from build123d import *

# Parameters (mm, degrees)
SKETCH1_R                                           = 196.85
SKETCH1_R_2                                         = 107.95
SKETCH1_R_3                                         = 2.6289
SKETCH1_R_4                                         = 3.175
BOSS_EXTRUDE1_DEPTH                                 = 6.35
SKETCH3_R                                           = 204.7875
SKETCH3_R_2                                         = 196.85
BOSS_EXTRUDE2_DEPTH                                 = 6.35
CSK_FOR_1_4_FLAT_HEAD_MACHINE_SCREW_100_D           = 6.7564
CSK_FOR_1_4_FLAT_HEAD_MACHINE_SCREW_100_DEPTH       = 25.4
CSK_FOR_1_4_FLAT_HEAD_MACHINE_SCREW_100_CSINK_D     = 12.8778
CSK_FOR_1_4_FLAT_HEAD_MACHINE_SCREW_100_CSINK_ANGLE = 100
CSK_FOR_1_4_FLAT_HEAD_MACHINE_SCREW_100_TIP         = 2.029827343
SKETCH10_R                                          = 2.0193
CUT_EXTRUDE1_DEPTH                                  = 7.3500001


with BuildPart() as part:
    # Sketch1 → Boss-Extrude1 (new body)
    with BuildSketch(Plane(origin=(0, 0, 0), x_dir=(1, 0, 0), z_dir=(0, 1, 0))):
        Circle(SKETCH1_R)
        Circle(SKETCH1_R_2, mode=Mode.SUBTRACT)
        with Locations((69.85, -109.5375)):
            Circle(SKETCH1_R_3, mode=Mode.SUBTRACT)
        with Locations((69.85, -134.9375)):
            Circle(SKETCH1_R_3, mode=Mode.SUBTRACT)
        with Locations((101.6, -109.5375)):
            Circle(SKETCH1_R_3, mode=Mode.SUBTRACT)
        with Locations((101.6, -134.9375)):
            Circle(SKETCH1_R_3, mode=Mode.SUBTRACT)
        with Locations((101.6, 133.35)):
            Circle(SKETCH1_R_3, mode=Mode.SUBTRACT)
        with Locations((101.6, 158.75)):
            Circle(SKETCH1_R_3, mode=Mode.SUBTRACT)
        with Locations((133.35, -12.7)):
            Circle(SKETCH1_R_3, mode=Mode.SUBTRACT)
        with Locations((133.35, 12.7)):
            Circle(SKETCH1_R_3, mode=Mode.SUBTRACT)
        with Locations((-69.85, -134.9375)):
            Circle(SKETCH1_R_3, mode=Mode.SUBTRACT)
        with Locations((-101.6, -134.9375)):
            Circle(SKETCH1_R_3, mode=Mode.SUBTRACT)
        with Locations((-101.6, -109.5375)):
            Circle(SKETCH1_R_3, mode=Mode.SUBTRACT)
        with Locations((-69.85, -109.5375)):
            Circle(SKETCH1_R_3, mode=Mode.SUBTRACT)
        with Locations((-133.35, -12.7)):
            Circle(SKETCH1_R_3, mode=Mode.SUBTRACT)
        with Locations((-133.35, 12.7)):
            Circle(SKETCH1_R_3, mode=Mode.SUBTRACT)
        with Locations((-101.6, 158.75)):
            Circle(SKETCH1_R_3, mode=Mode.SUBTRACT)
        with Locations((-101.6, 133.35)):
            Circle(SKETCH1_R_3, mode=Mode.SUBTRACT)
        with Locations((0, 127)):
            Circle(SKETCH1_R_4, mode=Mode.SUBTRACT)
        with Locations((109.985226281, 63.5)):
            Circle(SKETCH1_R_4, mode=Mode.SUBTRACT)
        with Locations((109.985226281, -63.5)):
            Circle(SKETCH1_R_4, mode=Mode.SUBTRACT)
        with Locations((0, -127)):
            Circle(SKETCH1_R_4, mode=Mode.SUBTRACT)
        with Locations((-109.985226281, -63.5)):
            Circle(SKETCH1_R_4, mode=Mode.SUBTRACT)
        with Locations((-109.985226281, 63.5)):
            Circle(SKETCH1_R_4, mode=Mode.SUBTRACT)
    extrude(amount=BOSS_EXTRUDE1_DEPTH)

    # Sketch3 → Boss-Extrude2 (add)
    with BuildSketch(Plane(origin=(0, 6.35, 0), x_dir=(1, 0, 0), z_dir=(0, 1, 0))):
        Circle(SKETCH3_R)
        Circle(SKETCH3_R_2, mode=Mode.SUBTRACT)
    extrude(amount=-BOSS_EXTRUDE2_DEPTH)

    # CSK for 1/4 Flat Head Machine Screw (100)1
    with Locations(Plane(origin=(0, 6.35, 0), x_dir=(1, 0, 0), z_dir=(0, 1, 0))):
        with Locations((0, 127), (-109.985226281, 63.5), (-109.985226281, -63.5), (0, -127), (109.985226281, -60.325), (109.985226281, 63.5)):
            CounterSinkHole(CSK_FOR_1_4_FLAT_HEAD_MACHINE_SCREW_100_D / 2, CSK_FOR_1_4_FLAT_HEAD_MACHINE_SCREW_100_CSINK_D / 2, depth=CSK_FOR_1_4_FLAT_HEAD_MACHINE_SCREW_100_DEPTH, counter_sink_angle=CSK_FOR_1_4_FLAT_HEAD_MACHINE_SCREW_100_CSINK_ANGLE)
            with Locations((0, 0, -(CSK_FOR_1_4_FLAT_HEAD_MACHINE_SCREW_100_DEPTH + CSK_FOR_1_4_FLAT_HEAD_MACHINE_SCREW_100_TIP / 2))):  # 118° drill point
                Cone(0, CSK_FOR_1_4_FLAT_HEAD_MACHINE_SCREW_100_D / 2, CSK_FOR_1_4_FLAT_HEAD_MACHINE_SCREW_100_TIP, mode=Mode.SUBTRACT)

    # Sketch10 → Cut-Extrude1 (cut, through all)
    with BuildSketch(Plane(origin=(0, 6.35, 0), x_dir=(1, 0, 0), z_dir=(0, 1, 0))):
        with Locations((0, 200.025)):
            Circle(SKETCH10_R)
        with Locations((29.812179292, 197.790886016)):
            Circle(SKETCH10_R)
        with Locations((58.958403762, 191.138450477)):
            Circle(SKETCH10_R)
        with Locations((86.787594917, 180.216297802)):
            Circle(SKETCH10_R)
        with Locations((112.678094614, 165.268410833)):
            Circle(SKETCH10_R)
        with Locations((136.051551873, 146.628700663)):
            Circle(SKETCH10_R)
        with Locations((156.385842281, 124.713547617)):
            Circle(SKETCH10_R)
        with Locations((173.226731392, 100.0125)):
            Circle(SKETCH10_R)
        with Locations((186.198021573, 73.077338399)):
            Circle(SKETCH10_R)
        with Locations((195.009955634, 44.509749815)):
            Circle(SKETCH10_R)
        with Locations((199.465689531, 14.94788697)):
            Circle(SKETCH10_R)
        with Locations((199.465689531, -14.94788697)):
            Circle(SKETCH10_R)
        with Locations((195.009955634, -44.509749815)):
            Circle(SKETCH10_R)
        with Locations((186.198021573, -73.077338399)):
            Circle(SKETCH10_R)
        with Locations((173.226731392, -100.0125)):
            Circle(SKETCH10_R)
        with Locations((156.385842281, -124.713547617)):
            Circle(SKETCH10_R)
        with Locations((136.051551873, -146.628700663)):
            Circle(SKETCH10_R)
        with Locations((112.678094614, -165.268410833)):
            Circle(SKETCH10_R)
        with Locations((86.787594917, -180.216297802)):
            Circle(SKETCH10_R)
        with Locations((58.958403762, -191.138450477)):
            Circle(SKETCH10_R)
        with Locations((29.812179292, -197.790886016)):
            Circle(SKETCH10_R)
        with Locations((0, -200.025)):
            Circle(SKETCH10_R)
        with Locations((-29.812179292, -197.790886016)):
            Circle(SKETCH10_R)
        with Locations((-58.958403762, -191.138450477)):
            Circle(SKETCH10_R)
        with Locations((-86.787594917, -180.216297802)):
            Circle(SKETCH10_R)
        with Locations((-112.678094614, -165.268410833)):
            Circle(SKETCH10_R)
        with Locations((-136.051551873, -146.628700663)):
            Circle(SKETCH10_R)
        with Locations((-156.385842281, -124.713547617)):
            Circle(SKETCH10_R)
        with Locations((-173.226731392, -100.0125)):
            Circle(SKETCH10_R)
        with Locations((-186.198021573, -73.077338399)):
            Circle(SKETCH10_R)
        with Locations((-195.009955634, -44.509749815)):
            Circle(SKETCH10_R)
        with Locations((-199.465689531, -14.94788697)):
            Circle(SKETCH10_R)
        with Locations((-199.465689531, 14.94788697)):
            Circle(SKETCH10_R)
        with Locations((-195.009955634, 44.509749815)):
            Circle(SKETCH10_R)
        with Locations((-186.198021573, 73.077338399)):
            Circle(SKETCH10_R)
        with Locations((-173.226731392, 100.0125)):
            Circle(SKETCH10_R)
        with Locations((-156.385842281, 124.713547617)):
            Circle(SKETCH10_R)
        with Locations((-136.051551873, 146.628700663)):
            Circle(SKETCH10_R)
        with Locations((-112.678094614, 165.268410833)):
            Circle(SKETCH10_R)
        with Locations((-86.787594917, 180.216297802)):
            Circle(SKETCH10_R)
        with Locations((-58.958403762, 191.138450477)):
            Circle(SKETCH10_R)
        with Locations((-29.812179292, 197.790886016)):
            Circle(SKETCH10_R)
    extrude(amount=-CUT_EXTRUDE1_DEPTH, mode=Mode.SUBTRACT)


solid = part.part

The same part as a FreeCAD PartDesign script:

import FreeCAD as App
import Part
import Sketcher
from FreeCAD import Vector
Q = App.Units.Quantity

doc = App.newDocument("Part")
params = doc.addObject("Spreadsheet::Sheet", "Params")
for row, (alias, value) in enumerate([
    ("sketch1_diameter", "15.5 in"),
    ("sketch1_diameter2", "8.5 in"),
    ("sketch1_diameter3", "0.25 in"),
    ("sketch1_diameter4", "0.207 in"),
    ("pad1_length", "0.25 in"),
    ("sketch2_diameter", "15.5 in"),
    ("sketch2_diameter2", "16.125 in"),
    ("pad2_length", "0.25 in"),
    ("sketch3_diameter", "0.266 in"),
    ("hole_diameter", "0.266 in"),
    ("hole_depth", "1 in"),
    ("hole_csink_diameter", "0.507 in"),
    ("sketch4_diameter", "0.159 in"),
], start=1):
    params.set(f"A{row}", alias)
    params.set(f"B{row}", "=" + value)
    params.setAlias(f"B{row}", alias)

body = doc.addObject("PartDesign::Body", "Body")

# Sketch on XZ plane
sketch1 = body.newObject("Sketcher::SketchObject", "Sketch")
sketch1.AttachmentSupport = (doc.getObject("XZ_Plane"), [""])
sketch1.MapMode = "FlatFace"
sketch1.addGeometry([
    Part.Circle(Vector(0, 0, 0), Vector(0, 0, 1), 196.8),  # 0
    Part.Circle(Vector(-101.6, 134.9, 0), Vector(0, 0, 1), 2.6),  # 1
    Part.Circle(Vector(-69.8, 134.9, 0), Vector(0, 0, 1), 2.6),  # 2
    Part.Circle(Vector(-101.6, 109.5, 0), Vector(0, 0, 1), 2.6),  # 3
    Part.Circle(Vector(-69.8, 109.5, 0), Vector(0, 0, 1), 2.6),  # 4
    Part.Circle(Vector(-110, 63.5, 0), Vector(0, 0, 1), 3.2),  # 5
    Part.Circle(Vector(-133.3, 12.7, 0), Vector(0, 0, 1), 2.6),  # 6
    Part.Circle(Vector(0, 127, 0), Vector(0, 0, 1), 3.2),  # 7
    Part.Circle(Vector(69.8, 134.9, 0), Vector(0, 0, 1), 2.6),  # 8
    Part.Circle(Vector(101.6, 134.9, 0), Vector(0, 0, 1), 2.6),  # 9
    Part.Circle(Vector(69.8, 109.5, 0), Vector(0, 0, 1), 2.6),  # 10
    Part.Circle(Vector(101.6, 109.5, 0), Vector(0, 0, 1), 2.6),  # 11
    Part.Circle(Vector(110, 63.5, 0), Vector(0, 0, 1), 3.2),  # 12
    Part.Circle(Vector(0, 0, 0), Vector(0, 0, 1), 108),  # 13
    Part.Circle(Vector(133.3, 12.7, 0), Vector(0, 0, 1), 2.6),  # 14
    Part.Circle(Vector(-133.3, -12.7, 0), Vector(0, 0, 1), 2.6),  # 15
    Part.Circle(Vector(-110, -63.5, 0), Vector(0, 0, 1), 3.2),  # 16
    Part.Circle(Vector(-101.6, -133.3, 0), Vector(0, 0, 1), 2.6),  # 17
    Part.Circle(Vector(-101.6, -158.8, 0), Vector(0, 0, 1), 2.6),  # 18
    Part.Circle(Vector(133.3, -12.7, 0), Vector(0, 0, 1), 2.6),  # 19
    Part.Circle(Vector(110, -63.5, 0), Vector(0, 0, 1), 3.2),  # 20
    Part.Circle(Vector(0, -127, 0), Vector(0, 0, 1), 3.2),  # 21
    Part.Circle(Vector(101.6, -133.3, 0), Vector(0, 0, 1), 2.6),  # 22
    Part.Circle(Vector(101.6, -158.8, 0), Vector(0, 0, 1), 2.6),  # 23
], False)
sketch1.addConstraint([
    Sketcher.Constraint("Coincident", 0, 3, -1, 1),
    Sketcher.Constraint("Coincident", 13, 3, -1, 1),
    Sketcher.Constraint("Equal", 1, 2),
    Sketcher.Constraint("Equal", 2, 3),
    Sketcher.Constraint("Equal", 3, 4),
    Sketcher.Constraint("Equal", 4, 6),
    Sketcher.Constraint("Equal", 5, 7),
    Sketcher.Constraint("Equal", 6, 8),
    Sketcher.Constraint("Equal", 8, 9),
    Sketcher.Constraint("Equal", 9, 10),
    Sketcher.Constraint("Equal", 10, 11),
    Sketcher.Constraint("Equal", 7, 12),
    Sketcher.Constraint("Equal", 11, 14),
    Sketcher.Constraint("Equal", 14, 15),
    Sketcher.Constraint("Equal", 12, 16),
    Sketcher.Constraint("Equal", 15, 17),
    Sketcher.Constraint("Equal", 17, 18),
    Sketcher.Constraint("Equal", 18, 19),
    Sketcher.Constraint("Equal", 16, 20),
    Sketcher.Constraint("Equal", 20, 21),
    Sketcher.Constraint("Equal", 19, 22),
    Sketcher.Constraint("Equal", 22, 23),
    Sketcher.Constraint("Symmetric", 14, 3, 15, 3, -1, 1),
    Sketcher.Constraint("Symmetric", 12, 3, 16, 3, -1, 1),
    Sketcher.Constraint("Symmetric", 6, 3, 19, 3, -1, 1),
    Sketcher.Constraint("Symmetric", 5, 3, 20, 3, -1, 1),
    Sketcher.Constraint("Symmetric", 7, 3, 21, 3, -1, 1),
    Sketcher.Constraint("Symmetric", 2, 3, 8, 3, -2),
    Sketcher.Constraint("Symmetric", 1, 3, 9, 3, -2),
    Sketcher.Constraint("Symmetric", 4, 3, 10, 3, -2),
    Sketcher.Constraint("Symmetric", 3, 3, 11, 3, -2),
    Sketcher.Constraint("Symmetric", 5, 3, 12, 3, -2),
    Sketcher.Constraint("Symmetric", 6, 3, 14, 3, -2),
    Sketcher.Constraint("Symmetric", 17, 3, 22, 3, -2),
    Sketcher.Constraint("Symmetric", 18, 3, 23, 3, -2),
    Sketcher.Constraint("PointOnObject", 7, 3, -2),
    Sketcher.Constraint("Horizontal", 1, 3, 2, 3),
    Sketcher.Constraint("Horizontal", 3, 3, 4, 3),
    Sketcher.Constraint("Vertical", 1, 3, 3, 3),
    Sketcher.Constraint("Vertical", 2, 3, 4, 3),
    Sketcher.Constraint("Vertical", 3, 3, 17, 3),
    Sketcher.Constraint("Vertical", 17, 3, 18, 3),
    Sketcher.Constraint("Diameter", 0, Q("15.5 in")),
    Sketcher.Constraint("Diameter", 13, Q("8.5 in")),
    Sketcher.Constraint("Diameter", 5, Q("0.25 in")),
    Sketcher.Constraint("Diameter", 1, Q("0.207 in")),
    Sketcher.Constraint("DistanceX", 1, 3, -1, 1, Q("4 in")),
    Sketcher.Constraint("DistanceY", -1, 1, 7, 3, Q("5 in")),
    Sketcher.Constraint("DistanceY", 3, 3, 1, 3, Q("1 in")),
    Sketcher.Constraint("DistanceY", 6, 3, 5, 3, Q("2 in")),
    Sketcher.Constraint("DistanceY", 15, 3, 6, 3, Q("1 in")),
    Sketcher.Constraint("DistanceY", 18, 3, 17, 3, Q("1 in")),
    Sketcher.Constraint("DistanceX", 6, 3, 4, 3, Q("2.5 in")),
    Sketcher.Constraint("DistanceX", 2, 3, 8, 3, Q("5.5 in")),
    Sketcher.Constraint("DistanceY", 17, 3, -1, 1, Q("5.25 in")),
    Sketcher.Constraint("DistanceY", -1, 1, 1, 3, Q("5.3125 in")),
    Sketcher.Constraint("DistanceX", 5, 3, -1, 1, 109.985226),
])
sketch1.setExpression("Constraints[42]", "Params.sketch1_diameter")
sketch1.setExpression("Constraints[43]", "Params.sketch1_diameter2")
sketch1.setExpression("Constraints[44]", "Params.sketch1_diameter3")
sketch1.setExpression("Constraints[45]", "Params.sketch1_diameter4")
pad1 = body.newObject("PartDesign::Pad", "Pad")
pad1.Profile = sketch1
pad1.setExpression("Length", "Params.pad1_length")
pad1.Reversed = True

# Sketch on XZ plane
sketch2 = body.newObject("Sketcher::SketchObject", "Sketch001")
sketch2.AttachmentSupport = (doc.getObject("XZ_Plane"), [""])
sketch2.MapMode = "FlatFace"
sketch2.AttachmentOffset = App.Placement(Vector(0, 0, -0.25 * 25.4), App.Rotation())
sketch2.addGeometry([
    Part.Circle(Vector(0, 0, 0), Vector(0, 0, 1), 205),
    Part.Circle(Vector(0, 0, 0), Vector(0, 0, 1), 197),
], False)
sketch2.addConstraint([
    Sketcher.Constraint("Coincident", 0, 3, -1, 1),
    Sketcher.Constraint("Coincident", 1, 3, -1, 1),
    Sketcher.Constraint("Diameter", 1, Q("15.5 in")),
    Sketcher.Constraint("Diameter", 0, Q("16.125 in")),
])
sketch2.setExpression("Constraints[2]", "Params.sketch2_diameter")
sketch2.setExpression("Constraints[3]", "Params.sketch2_diameter2")
pad2 = body.newObject("PartDesign::Pad", "Pad001")
pad2.Profile = sketch2
pad2.setExpression("Length", "Params.pad2_length")

# Sketch on XZ plane
sketch3 = body.newObject("Sketcher::SketchObject", "Sketch002")
sketch3.AttachmentSupport = (doc.getObject("XZ_Plane"), [""])
sketch3.MapMode = "FlatFace"
sketch3.AttachmentOffset = App.Placement(Vector(0, 0, -0.25 * 25.4), App.Rotation())
sketch3.addGeometry([
    Part.Circle(Vector(0, -127, 0), Vector(0, 0, 1), 3.4),  # 0
    Part.Circle(Vector(-110, -63.5, 0), Vector(0, 0, 1), 3.4),  # 1
    Part.Circle(Vector(-110, 63.5, 0), Vector(0, 0, 1), 3.4),  # 2
    Part.Circle(Vector(0, 127, 0), Vector(0, 0, 1), 3.4),  # 3
    Part.Circle(Vector(110, 60.3, 0), Vector(0, 0, 1), 3.4),  # 4
    Part.Circle(Vector(110, -63.5, 0), Vector(0, 0, 1), 3.4),  # 5
], False)
sketch3.addConstraint([
    Sketcher.Constraint("Equal", 0, 1),
    Sketcher.Constraint("Equal", 1, 2),
    Sketcher.Constraint("Equal", 2, 3),
    Sketcher.Constraint("Equal", 3, 4),
    Sketcher.Constraint("Equal", 4, 5),
    Sketcher.Constraint("Symmetric", 0, 3, 3, 3, -1, 1),
    Sketcher.Constraint("Symmetric", 2, 3, 5, 3, -1, 1),
    Sketcher.Constraint("Symmetric", 1, 3, 5, 3, -2),
    Sketcher.Constraint("PointOnObject", 0, 3, -2),
    Sketcher.Constraint("Vertical", 4, 3, 5, 3),
    Sketcher.Constraint("Diameter", 0, Q("0.266 in")),
    Sketcher.Constraint("DistanceY", 0, 3, -1, 1, Q("5 in")),
    Sketcher.Constraint("DistanceY", 1, 3, 2, 3, Q("5 in")),
    Sketcher.Constraint("DistanceY", -1, 1, 4, 3, Q("2.375 in")),
    Sketcher.Constraint("DistanceX", 1, 3, -1, 1, 109.985226),
])
sketch3.setExpression("Constraints[10]", "Params.sketch3_diameter")
doc.recompute()
hole = body.newObject("PartDesign::Hole", "Hole")
hole.Profile = sketch3
hole.ThreadType = "None"
hole.setExpression("Diameter", "Params.hole_diameter")
hole.DepthType = "Dimension"
hole.setExpression("Depth", "Params.hole_depth")
hole.DrillPoint = "Angled"
hole.DrillPointAngle = 118
hole.HoleCutType = "Countersink"
hole.setExpression("HoleCutDiameter", "Params.hole_csink_diameter")
hole.HoleCutCountersinkAngle = 100
hole.Reversed = True

# Sketch on XZ plane
sketch4 = body.newObject("Sketcher::SketchObject", "Sketch003")
sketch4.AttachmentSupport = (doc.getObject("XZ_Plane"), [""])
sketch4.MapMode = "FlatFace"
sketch4.AttachmentOffset = App.Placement(Vector(0, 0, -0.25 * 25.4), App.Rotation())
sketch4.addGeometry([
    Part.Circle(Vector(0, -200, 0), Vector(0, 0, 1), 2),  # 0
    Part.Circle(Vector(29.8, -197.8, 0), Vector(0, 0, 1), 2),  # 1
    Part.Circle(Vector(59, -191.1, 0), Vector(0, 0, 1), 2),  # 2
    Part.Circle(Vector(86.8, -180.2, 0), Vector(0, 0, 1), 2),  # 3
    Part.Circle(Vector(112.7, -165.3, 0), Vector(0, 0, 1), 2),  # 4
    Part.Circle(Vector(136.1, -146.6, 0), Vector(0, 0, 1), 2),  # 5
    Part.Circle(Vector(156.4, -124.7, 0), Vector(0, 0, 1), 2),  # 6
    Part.Circle(Vector(173.2, -100, 0), Vector(0, 0, 1), 2),  # 7
    Part.Circle(Vector(186.2, -73.1, 0), Vector(0, 0, 1), 2),  # 8
    Part.Circle(Vector(195, -44.5, 0), Vector(0, 0, 1), 2),  # 9
    Part.Circle(Vector(199.5, -14.9, 0), Vector(0, 0, 1), 2),  # 10
    Part.Circle(Vector(199.5, 14.9, 0), Vector(0, 0, 1), 2),  # 11
    Part.Circle(Vector(195, 44.5, 0), Vector(0, 0, 1), 2),  # 12
    Part.Circle(Vector(186.2, 73.1, 0), Vector(0, 0, 1), 2),  # 13
    Part.Circle(Vector(173.2, 100, 0), Vector(0, 0, 1), 2),  # 14
    Part.Circle(Vector(156.4, 124.7, 0), Vector(0, 0, 1), 2),  # 15
    Part.Circle(Vector(136.1, 146.6, 0), Vector(0, 0, 1), 2),  # 16
    Part.Circle(Vector(112.7, 165.3, 0), Vector(0, 0, 1), 2),  # 17
    Part.Circle(Vector(86.8, 180.2, 0), Vector(0, 0, 1), 2),  # 18
    Part.Circle(Vector(59, 191.1, 0), Vector(0, 0, 1), 2),  # 19
    Part.Circle(Vector(29.8, 197.8, 0), Vector(0, 0, 1), 2),  # 20
    Part.Circle(Vector(0, 200, 0), Vector(0, 0, 1), 2),  # 21
    Part.Circle(Vector(-29.8, 197.8, 0), Vector(0, 0, 1), 2),  # 22
    Part.Circle(Vector(-59, 191.1, 0), Vector(0, 0, 1), 2),  # 23
    Part.Circle(Vector(-86.8, 180.2, 0), Vector(0, 0, 1), 2),  # 24
    Part.Circle(Vector(-112.7, 165.3, 0), Vector(0, 0, 1), 2),  # 25
    Part.Circle(Vector(-136.1, 146.6, 0), Vector(0, 0, 1), 2),  # 26
    Part.Circle(Vector(-156.4, 124.7, 0), Vector(0, 0, 1), 2),  # 27
    Part.Circle(Vector(-173.2, 100, 0), Vector(0, 0, 1), 2),  # 28
    Part.Circle(Vector(-186.2, 73.1, 0), Vector(0, 0, 1), 2),  # 29
    Part.Circle(Vector(-195, 44.5, 0), Vector(0, 0, 1), 2),  # 30
    Part.Circle(Vector(-199.5, 14.9, 0), Vector(0, 0, 1), 2),  # 31
    Part.Circle(Vector(-199.5, -14.9, 0), Vector(0, 0, 1), 2),  # 32
    Part.Circle(Vector(-195, -44.5, 0), Vector(0, 0, 1), 2),  # 33
    Part.Circle(Vector(-186.2, -73.1, 0), Vector(0, 0, 1), 2),  # 34
    Part.Circle(Vector(-173.2, -100, 0), Vector(0, 0, 1), 2),  # 35
    Part.Circle(Vector(-156.4, -124.7, 0), Vector(0, 0, 1), 2),  # 36
    Part.Circle(Vector(-136.1, -146.6, 0), Vector(0, 0, 1), 2),  # 37
    Part.Circle(Vector(-112.7, -165.3, 0), Vector(0, 0, 1), 2),  # 38
    Part.Circle(Vector(-86.8, -180.2, 0), Vector(0, 0, 1), 2),  # 39
    Part.Circle(Vector(-59, -191.1, 0), Vector(0, 0, 1), 2),  # 40
    Part.Circle(Vector(-29.8, -197.8, 0), Vector(0, 0, 1), 2),  # 41
], False)
sketch4.addConstraint([
    Sketcher.Constraint("Equal", 0, 1),
    Sketcher.Constraint("Equal", 1, 2),
    Sketcher.Constraint("Equal", 2, 3),
    Sketcher.Constraint("Equal", 3, 4),
    Sketcher.Constraint("Equal", 4, 5),
    Sketcher.Constraint("Equal", 5, 6),
    Sketcher.Constraint("Equal", 6, 7),
    Sketcher.Constraint("Equal", 7, 8),
    Sketcher.Constraint("Equal", 8, 9),
    Sketcher.Constraint("Equal", 9, 10),
    Sketcher.Constraint("Equal", 10, 11),
    Sketcher.Constraint("Equal", 11, 12),
    Sketcher.Constraint("Equal", 12, 13),
    Sketcher.Constraint("Equal", 13, 14),
    Sketcher.Constraint("Equal", 14, 15),
    Sketcher.Constraint("Equal", 15, 16),
    Sketcher.Constraint("Equal", 16, 17),
    Sketcher.Constraint("Equal", 17, 18),
    Sketcher.Constraint("Equal", 18, 19),
    Sketcher.Constraint("Equal", 19, 20),
    Sketcher.Constraint("Equal", 20, 21),
    Sketcher.Constraint("Equal", 21, 22),
    Sketcher.Constraint("Equal", 22, 23),
    Sketcher.Constraint("Equal", 23, 24),
    Sketcher.Constraint("Equal", 24, 25),
    Sketcher.Constraint("Equal", 25, 26),
    Sketcher.Constraint("Equal", 26, 27),
    Sketcher.Constraint("Equal", 27, 28),
    Sketcher.Constraint("Equal", 28, 29),
    Sketcher.Constraint("Equal", 29, 30),
    Sketcher.Constraint("Equal", 30, 31),
    Sketcher.Constraint("Equal", 31, 32),
    Sketcher.Constraint("Equal", 32, 33),
    Sketcher.Constraint("Equal", 33, 34),
    Sketcher.Constraint("Equal", 34, 35),
    Sketcher.Constraint("Equal", 35, 36),
    Sketcher.Constraint("Equal", 36, 37),
    Sketcher.Constraint("Equal", 37, 38),
    Sketcher.Constraint("Equal", 38, 39),
    Sketcher.Constraint("Equal", 39, 40),
    Sketcher.Constraint("Equal", 40, 41),
    Sketcher.Constraint("Symmetric", 0, 3, 21, 3, -1, 1),
    Sketcher.Constraint("Symmetric", 1, 3, 22, 3, -1, 1),
    Sketcher.Constraint("Symmetric", 2, 3, 23, 3, -1, 1),
    Sketcher.Constraint("Symmetric", 3, 3, 24, 3, -1, 1),
    Sketcher.Constraint("Symmetric", 4, 3, 25, 3, -1, 1),
    Sketcher.Constraint("Symmetric", 5, 3, 26, 3, -1, 1),
    Sketcher.Constraint("Symmetric", 6, 3, 27, 3, -1, 1),
    Sketcher.Constraint("Symmetric", 7, 3, 28, 3, -1, 1),
    Sketcher.Constraint("Symmetric", 8, 3, 29, 3, -1, 1),
    Sketcher.Constraint("Symmetric", 9, 3, 30, 3, -1, 1),
    Sketcher.Constraint("Symmetric", 10, 3, 31, 3, -1, 1),
    Sketcher.Constraint("Symmetric", 11, 3, 32, 3, -1, 1),
    Sketcher.Constraint("Symmetric", 12, 3, 33, 3, -1, 1),
    Sketcher.Constraint("Symmetric", 13, 3, 34, 3, -1, 1),
    Sketcher.Constraint("Symmetric", 14, 3, 35, 3, -1, 1),
    Sketcher.Constraint("Symmetric", 15, 3, 36, 3, -1, 1),
    Sketcher.Constraint("Symmetric", 16, 3, 37, 3, -1, 1),
    Sketcher.Constraint("Symmetric", 17, 3, 38, 3, -1, 1),
    Sketcher.Constraint("Symmetric", 18, 3, 39, 3, -1, 1),
    Sketcher.Constraint("Symmetric", 19, 3, 40, 3, -1, 1),
    Sketcher.Constraint("Symmetric", 20, 3, 41, 3, -1, 1),
    Sketcher.Constraint("Symmetric", 20, 3, 22, 3, -2),
    Sketcher.Constraint("Symmetric", 19, 3, 23, 3, -2),
    Sketcher.Constraint("Symmetric", 18, 3, 24, 3, -2),
    Sketcher.Constraint("Symmetric", 17, 3, 25, 3, -2),
    Sketcher.Constraint("Symmetric", 16, 3, 26, 3, -2),
    Sketcher.Constraint("Symmetric", 15, 3, 27, 3, -2),
    Sketcher.Constraint("Symmetric", 14, 3, 28, 3, -2),
    Sketcher.Constraint("Symmetric", 13, 3, 29, 3, -2),
    Sketcher.Constraint("Symmetric", 12, 3, 30, 3, -2),
    Sketcher.Constraint("Symmetric", 11, 3, 31, 3, -2),
    Sketcher.Constraint("PointOnObject", 0, 3, -2),
    Sketcher.Constraint("Diameter", 0, Q("0.159 in")),
    Sketcher.Constraint("DistanceY", 0, 3, -1, 1, Q("7.875 in")),
    Sketcher.Constraint("DistanceY", 7, 3, -1, 1, Q("3.9375 in")),
    Sketcher.Constraint("DistanceY", 5, 3, -1, 1, 146.628701),
    Sketcher.Constraint("DistanceX", 3, 3, 4, 3, 25.8905),
    Sketcher.Constraint("DistanceY", 9, 3, 12, 3, 89.0195),
    Sketcher.Constraint("DistanceX", 23, 3, 18, 3, 145.745999),
    Sketcher.Constraint("DistanceX", -1, 1, 1, 3, 29.812179),
    Sketcher.Constraint("DistanceY", 2, 3, -1, 1, 191.13845),
    Sketcher.Constraint("DistanceY", 4, 3, -1, 1, 165.268411),
    Sketcher.Constraint("DistanceX", -1, 1, 5, 3, 136.051552),
    Sketcher.Constraint("DistanceX", -1, 1, 7, 3, 173.226731),
    Sketcher.Constraint("DistanceX", -1, 1, 8, 3, 186.198022),
    Sketcher.Constraint("DistanceY", 8, 3, -1, 1, 73.077338),
    Sketcher.Constraint("DistanceX", -1, 1, 10, 3, 199.46569),
    Sketcher.Constraint("DistanceX", 2, 3, 3, 3, 27.829191),
    Sketcher.Constraint("DistanceY", 1, 3, 3, 3, 17.574588),
    Sketcher.Constraint("DistanceX", 5, 3, 6, 3, 20.33429),
    Sketcher.Constraint("DistanceY", 3, 3, 6, 3, 55.50275),
    Sketcher.Constraint("DistanceY", 6, 3, 8, 3, 51.636209),
    Sketcher.Constraint("DistanceX", 4, 3, 9, 3, 82.331861),
    Sketcher.Constraint("DistanceY", 8, 3, 10, 3, 58.129451),
])
sketch4.setExpression("Constraints[73]", "Params.sketch4_diameter")
pocket1 = body.newObject("PartDesign::Pocket", "Pocket")
pocket1.Profile = sketch4
pocket1.Type = "ThroughAll"
pocket1.Reversed = True

doc.recompute()
